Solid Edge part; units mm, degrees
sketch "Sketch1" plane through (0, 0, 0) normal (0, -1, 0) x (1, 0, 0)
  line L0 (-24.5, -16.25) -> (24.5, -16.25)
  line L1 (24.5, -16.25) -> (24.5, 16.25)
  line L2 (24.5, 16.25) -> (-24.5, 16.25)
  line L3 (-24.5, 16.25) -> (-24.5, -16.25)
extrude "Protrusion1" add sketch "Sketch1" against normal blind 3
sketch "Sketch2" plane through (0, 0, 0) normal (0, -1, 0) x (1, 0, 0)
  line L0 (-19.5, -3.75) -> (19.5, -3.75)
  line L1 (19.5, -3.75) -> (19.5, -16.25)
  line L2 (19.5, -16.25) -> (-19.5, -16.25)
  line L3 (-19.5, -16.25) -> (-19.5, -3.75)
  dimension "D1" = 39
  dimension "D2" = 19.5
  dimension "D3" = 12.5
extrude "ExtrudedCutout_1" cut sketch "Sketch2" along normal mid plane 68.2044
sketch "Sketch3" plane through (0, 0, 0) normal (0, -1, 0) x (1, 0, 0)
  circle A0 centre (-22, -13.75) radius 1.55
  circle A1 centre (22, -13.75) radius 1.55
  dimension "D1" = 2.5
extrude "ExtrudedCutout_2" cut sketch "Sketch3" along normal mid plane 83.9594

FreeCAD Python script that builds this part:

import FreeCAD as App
import Part
import Sketcher

V = App.Vector
Q = App.Units.Quantity

doc = App.newDocument("Part")
body = doc.addObject("PartDesign::Body", "Body")

sketch1 = body.newObject("Sketcher::SketchObject", "Sketch")
sketch1.AttachmentSupport = (doc.getObject("XZ_Plane"), [""])
sketch1.MapMode = "FlatFace"
sketch1.addGeometry([
    Part.LineSegment(V(-24, 16, 0), V(-24, -16, 0)),
    Part.LineSegment(V(-24, -16, 0), V(24, -16, 0)),
    Part.LineSegment(V(24, -16, 0), V(24, 16, 0)),
    Part.LineSegment(V(24, 16, 0), V(-24, 16, 0)),
], False)
sketch1.addConstraint([
    Sketcher.Constraint("Coincident", 0, 2, 1, 1),
    Sketcher.Constraint("Coincident", 1, 2, 2, 1),
    Sketcher.Constraint("Coincident", 2, 2, 3, 1),
    Sketcher.Constraint("Coincident", 3, 2, 0, 1),
    Sketcher.Constraint("Vertical", 0),
    Sketcher.Constraint("Horizontal", 1),
    Sketcher.Constraint("Vertical", 2),
    Sketcher.Constraint("Horizontal", 3),
    Sketcher.Constraint("Symmetric", 0, 2, 2, 2, -1, 1),
    Sketcher.Constraint("DistanceX", 1, 1, 1, 2, Q("49 mm")),
    Sketcher.Constraint("DistanceY", 0, 2, 0, 1, Q("32.5 mm")),
])
pad1 = body.newObject("PartDesign::Pad", "Pad")
pad1.Profile = sketch1
pad1.Length = 3
pad1.Reversed = True

sketch2 = body.newObject("Sketcher::SketchObject", "Sketch001")
sketch2.AttachmentSupport = (doc.getObject("XZ_Plane"), [""])
sketch2.MapMode = "FlatFace"
sketch2.addGeometry([
    Part.LineSegment(V(20, -4, 0), V(-20, -4, 0)),
    Part.LineSegment(V(-20, -4, 0), V(-20, -16, 0)),
    Part.LineSegment(V(-20, -16, 0), V(20, -16, 0)),
    Part.LineSegment(V(20, -16, 0), V(20, -4, 0)),
], False)
sketch2.addConstraint([
    Sketcher.Constraint("Coincident", 0, 2, 1, 1),
    Sketcher.Constraint("Coincident", 1, 2, 2, 1),
    Sketcher.Constraint("Coincident", 2, 2, 3, 1),
    Sketcher.Constraint("Coincident", 3, 2, 0, 1),
    Sketcher.Constraint("Horizontal", 0),
    Sketcher.Constraint("Vertical", 1),
    Sketcher.Constraint("Horizontal", 2),
    Sketcher.Constraint("Vertical", 3),
    Sketcher.Constraint("DistanceX", 0, 2, -1, 1, Q("19.5 mm")),
    Sketcher.Constraint("DistanceX", -1, 1, 2, 2, Q("19.5 mm")),
    Sketcher.Constraint("DistanceY", 1, 2, 1, 1, Q("12.5 mm")),
    Sketcher.Constraint("DistanceY", 0, 2, -1, 1, Q("3.75 mm")),
])
pocket1 = body.newObject("PartDesign::Pocket", "Pocket")
pocket1.Profile = sketch2
pocket1.Length = 68.2044
pocket1.Midplane = True

sketch3 = body.newObject("Sketcher::SketchObject", "Sketch002")
sketch3.AttachmentSupport = (doc.getObject("XZ_Plane"), [""])
sketch3.MapMode = "FlatFace"
sketch3.addGeometry([
    Part.Circle(V(-22, -13.8, 0), V(0, 0, 1), 1.6),
    Part.Circle(V(22, -13.8, 0), V(0, 0, 1), 1.6),
], False)
sketch3.addConstraint([
    Sketcher.Constraint("Equal", 0, 1),
    Sketcher.Constraint("Symmetric", 0, 3, 1, 3, -2),
    Sketcher.Constraint("DistanceX", 0, 3, -1, 1, Q("22 mm")),
    Sketcher.Constraint("Diameter", 0, Q("3.1 mm")),
    Sketcher.Constraint("DistanceY", 0, 3, -1, 1, Q("13.75 mm")),
])
pocket2 = body.newObject("PartDesign::Pocket", "Pocket001")
pocket2.Profile = sketch3
pocket2.Length = 83.9594
pocket2.Midplane = True

doc.recompute()
